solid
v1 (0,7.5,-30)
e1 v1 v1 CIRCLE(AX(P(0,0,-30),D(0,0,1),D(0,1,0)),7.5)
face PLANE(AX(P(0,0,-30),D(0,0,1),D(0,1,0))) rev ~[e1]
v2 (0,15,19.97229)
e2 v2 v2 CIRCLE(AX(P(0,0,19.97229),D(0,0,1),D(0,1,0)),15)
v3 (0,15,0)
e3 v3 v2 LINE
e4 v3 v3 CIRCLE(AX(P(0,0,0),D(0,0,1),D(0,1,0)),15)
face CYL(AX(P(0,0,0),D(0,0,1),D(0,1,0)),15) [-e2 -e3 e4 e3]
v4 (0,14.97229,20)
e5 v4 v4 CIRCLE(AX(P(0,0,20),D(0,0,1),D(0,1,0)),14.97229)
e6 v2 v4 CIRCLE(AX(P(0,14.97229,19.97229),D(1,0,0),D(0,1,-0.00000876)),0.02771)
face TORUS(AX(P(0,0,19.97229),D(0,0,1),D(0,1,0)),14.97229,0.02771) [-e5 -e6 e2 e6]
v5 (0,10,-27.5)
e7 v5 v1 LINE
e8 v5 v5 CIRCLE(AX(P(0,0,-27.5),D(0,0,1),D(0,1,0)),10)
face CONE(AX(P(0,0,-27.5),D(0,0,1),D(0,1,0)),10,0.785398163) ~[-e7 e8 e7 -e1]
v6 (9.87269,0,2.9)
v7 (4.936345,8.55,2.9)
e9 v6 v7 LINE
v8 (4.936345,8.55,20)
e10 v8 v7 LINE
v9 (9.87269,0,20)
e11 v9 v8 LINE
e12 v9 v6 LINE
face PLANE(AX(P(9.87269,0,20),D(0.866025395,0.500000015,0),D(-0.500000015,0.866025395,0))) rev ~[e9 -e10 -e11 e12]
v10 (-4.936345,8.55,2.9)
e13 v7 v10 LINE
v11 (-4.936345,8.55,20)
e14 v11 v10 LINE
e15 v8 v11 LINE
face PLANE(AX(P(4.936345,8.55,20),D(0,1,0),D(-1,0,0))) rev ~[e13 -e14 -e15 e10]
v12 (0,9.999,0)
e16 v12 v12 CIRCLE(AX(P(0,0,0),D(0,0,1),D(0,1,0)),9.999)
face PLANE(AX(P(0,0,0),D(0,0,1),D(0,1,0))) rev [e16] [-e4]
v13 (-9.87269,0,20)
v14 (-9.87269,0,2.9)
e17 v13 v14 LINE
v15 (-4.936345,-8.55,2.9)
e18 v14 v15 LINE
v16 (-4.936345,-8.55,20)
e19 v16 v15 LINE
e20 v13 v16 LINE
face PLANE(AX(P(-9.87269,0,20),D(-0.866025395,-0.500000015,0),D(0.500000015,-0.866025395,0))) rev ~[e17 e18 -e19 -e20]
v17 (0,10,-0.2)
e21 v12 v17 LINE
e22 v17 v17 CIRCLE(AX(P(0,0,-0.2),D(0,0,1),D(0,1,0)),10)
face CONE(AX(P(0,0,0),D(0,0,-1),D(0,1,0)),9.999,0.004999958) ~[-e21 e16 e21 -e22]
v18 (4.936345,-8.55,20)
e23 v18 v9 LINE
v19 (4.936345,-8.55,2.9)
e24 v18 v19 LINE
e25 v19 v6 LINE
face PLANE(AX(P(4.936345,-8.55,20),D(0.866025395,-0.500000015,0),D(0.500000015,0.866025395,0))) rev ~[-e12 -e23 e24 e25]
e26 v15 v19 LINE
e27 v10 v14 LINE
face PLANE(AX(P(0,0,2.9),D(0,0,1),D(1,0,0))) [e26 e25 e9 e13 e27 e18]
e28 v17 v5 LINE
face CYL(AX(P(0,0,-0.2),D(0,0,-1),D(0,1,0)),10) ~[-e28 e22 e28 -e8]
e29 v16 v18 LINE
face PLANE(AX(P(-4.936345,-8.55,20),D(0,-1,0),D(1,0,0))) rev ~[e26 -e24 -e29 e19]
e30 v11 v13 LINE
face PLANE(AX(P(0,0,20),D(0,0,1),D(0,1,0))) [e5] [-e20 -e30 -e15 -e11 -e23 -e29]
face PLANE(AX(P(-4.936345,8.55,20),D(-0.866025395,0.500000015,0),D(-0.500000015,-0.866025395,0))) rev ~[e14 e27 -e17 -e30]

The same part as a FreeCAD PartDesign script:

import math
import FreeCAD as App
import Part
import Sketcher
Q = App.Units.Quantity

doc = App.newDocument("Part")
params = doc.addObject("Spreadsheet::Sheet", "Params")
for row, (alias, value) in enumerate([
    ("sketch1_height", "50 mm"),
    ("sketch1_width", "7.5 mm"),
    ("sketch1_height2", "27.3 mm"),
    ("revolution_angle", "360 deg"),
    ("pocket1_length", "17.1 mm"),
], start=1):
    params.set(f"A{row}", alias)
    params.set(f"B{row}", "=" + value)
    params.setAlias(f"B{row}", alias)

body = doc.addObject("PartDesign::Body", "Body")

# Sketch on YZ plane
sketch1 = body.newObject("Sketcher::SketchObject", "Sketch")
sketch1.AttachmentSupport = (doc.getObject("YZ_Plane"), [""])
sketch1.MapMode = "FlatFace"
sketch1.addGeometry([
    Part.LineSegment(App.Vector(9.999, 0, 0), App.Vector(15, 0, 0)),  # 0
    Part.LineSegment(App.Vector(15, 0, 0), App.Vector(15, 19.972, 0)),  # 1
    Part.ArcOfCircle(Part.Circle(App.Vector(14.972, 19.972, 0), App.Vector(0, 0, 1), 0.028), math.radians(0), math.radians(90)),  # 2
    Part.LineSegment(App.Vector(14.972, 20, 0), App.Vector(0, 20, 0)),  # 3
    Part.LineSegment(App.Vector(0, 20, 0), App.Vector(0, -30, 0)),  # 4
    Part.LineSegment(App.Vector(0, -30, 0), App.Vector(7.5, -30, 0)),  # 5
    Part.LineSegment(App.Vector(7.5, -30, 0), App.Vector(10, -27.5, 0)),  # 6
    Part.LineSegment(App.Vector(10, -27.5, 0), App.Vector(10, -0.2, 0)),  # 7
    Part.LineSegment(App.Vector(10, -0.2, 0), App.Vector(9.999, 0, 0)),  # 8
], False)
sketch1.addConstraint([
    Sketcher.Constraint("Coincident", 0, 2, 1, 1),
    Sketcher.Constraint("Coincident", 1, 2, 2, 1),
    Sketcher.Constraint("Coincident", 2, 2, 3, 1),
    Sketcher.Constraint("Coincident", 3, 2, 4, 1),
    Sketcher.Constraint("Coincident", 4, 2, 5, 1),
    Sketcher.Constraint("Coincident", 5, 2, 6, 1),
    Sketcher.Constraint("Coincident", 6, 2, 7, 1),
    Sketcher.Constraint("Coincident", 7, 2, 8, 1),
    Sketcher.Constraint("Coincident", 8, 2, 0, 1),
    Sketcher.Constraint("Horizontal", 0),
    Sketcher.Constraint("Vertical", 1),
    Sketcher.Constraint("Horizontal", 3),
    Sketcher.Constraint("Vertical", 4),
    Sketcher.Constraint("Horizontal", 5),
    Sketcher.Constraint("Vertical", 7),
    Sketcher.Constraint("PointOnObject", 0, 2, -1),
    Sketcher.Constraint("PointOnObject", 3, 2, -2),
    Sketcher.Constraint("Horizontal", 2, 3, 1, 2),
    Sketcher.Constraint("DistanceY", 4, 2, 4, 1, Q("50 mm")),
    Sketcher.Constraint("Angle", 6, Q("45 deg")),
    Sketcher.Constraint("DistanceX", 5, 1, 5, 2, Q("7.5 mm")),
    Sketcher.Constraint("DistanceY", 7, 1, 7, 2, Q("27.3 mm")),
    Sketcher.Constraint("DistanceX", -1, 1, 0, 2, Q("15 mm")),
    Sketcher.Constraint("DistanceY", -1, 1, 2, 2, Q("20 mm")),
    Sketcher.Constraint("DistanceX", -1, 1, 6, 2, Q("10 mm")),
    Sketcher.Constraint("DistanceX", 0, 1, 0, 2, Q("5.001 mm")),
    Sketcher.Constraint("Radius", 2, Q("0.02771 mm")),
    Sketcher.Constraint("DistanceX", 3, 2, 3, 1, Q("14.97229 mm")),
])
sketch1.setExpression("Constraints[18]", "Params.sketch1_height")
sketch1.setExpression("Constraints[20]", "Params.sketch1_width")
sketch1.setExpression("Constraints[21]", "Params.sketch1_height2")
revolution = body.newObject("PartDesign::Revolution", "Revolution")
revolution.Profile = sketch1
revolution.ReferenceAxis = (sketch1, ["V_Axis"])
revolution.setExpression("Angle", "Params.revolution_angle")

# Sketch on XY plane
sketch2 = body.newObject("Sketcher::SketchObject", "Sketch001")
sketch2.AttachmentSupport = (doc.getObject("XY_Plane"), [""])
sketch2.MapMode = "FlatFace"
sketch2.AttachmentOffset = App.Placement(App.Vector(0, 0, 20), App.Rotation())
sketch2.addGeometry([
    Part.LineSegment(App.Vector(10, 0, 0), App.Vector(5, 9, 0)),  # 0
    Part.LineSegment(App.Vector(5, 9, 0), App.Vector(-5, 9, 0)),  # 1
    Part.LineSegment(App.Vector(-5, 9, 0), App.Vector(-10, 0, 0)),  # 2
    Part.LineSegment(App.Vector(-10, 0, 0), App.Vector(-5, -9, 0)),  # 3
    Part.LineSegment(App.Vector(-5, -9, 0), App.Vector(5, -9, 0)),  # 4
    Part.LineSegment(App.Vector(5, -9, 0), App.Vector(10, 0, 0)),  # 5
], False)
sketch2.addConstraint([
    Sketcher.Constraint("Coincident", 0, 2, 1, 1),
    Sketcher.Constraint("Coincident", 1, 2, 2, 1),
    Sketcher.Constraint("Coincident", 2, 2, 3, 1),
    Sketcher.Constraint("Coincident", 3, 2, 4, 1),
    Sketcher.Constraint("Coincident", 4, 2, 5, 1),
    Sketcher.Constraint("Coincident", 5, 2, 0, 1),
    Sketcher.Constraint("Horizontal", 1),
    Sketcher.Constraint("Horizontal", 4),
    Sketcher.Constraint("Symmetric", 0, 2, 3, 2, -1, 1),
    Sketcher.Constraint("Symmetric", 2, 2, 5, 2, -1, 1),
    Sketcher.Constraint("PointOnObject", 2, 2, -1),
    Sketcher.Constraint("Parallel", 2, 5),
    Sketcher.Constraint("Vertical", 1, 2, 3, 2),
    Sketcher.Constraint("Angle", 0, Q("120.000001 deg")),
    Sketcher.Constraint("DistanceY", 3, 2, 1, 2, Q("17.1 mm")),
    Sketcher.Constraint("DistanceX", 1, 2, 1, 1, Q("9.87269 mm")),
])
pocket1 = body.newObject("PartDesign::Pocket", "Pocket")
pocket1.Profile = sketch2
pocket1.setExpression("Length", "Params.pocket1_length")

doc.recompute()
